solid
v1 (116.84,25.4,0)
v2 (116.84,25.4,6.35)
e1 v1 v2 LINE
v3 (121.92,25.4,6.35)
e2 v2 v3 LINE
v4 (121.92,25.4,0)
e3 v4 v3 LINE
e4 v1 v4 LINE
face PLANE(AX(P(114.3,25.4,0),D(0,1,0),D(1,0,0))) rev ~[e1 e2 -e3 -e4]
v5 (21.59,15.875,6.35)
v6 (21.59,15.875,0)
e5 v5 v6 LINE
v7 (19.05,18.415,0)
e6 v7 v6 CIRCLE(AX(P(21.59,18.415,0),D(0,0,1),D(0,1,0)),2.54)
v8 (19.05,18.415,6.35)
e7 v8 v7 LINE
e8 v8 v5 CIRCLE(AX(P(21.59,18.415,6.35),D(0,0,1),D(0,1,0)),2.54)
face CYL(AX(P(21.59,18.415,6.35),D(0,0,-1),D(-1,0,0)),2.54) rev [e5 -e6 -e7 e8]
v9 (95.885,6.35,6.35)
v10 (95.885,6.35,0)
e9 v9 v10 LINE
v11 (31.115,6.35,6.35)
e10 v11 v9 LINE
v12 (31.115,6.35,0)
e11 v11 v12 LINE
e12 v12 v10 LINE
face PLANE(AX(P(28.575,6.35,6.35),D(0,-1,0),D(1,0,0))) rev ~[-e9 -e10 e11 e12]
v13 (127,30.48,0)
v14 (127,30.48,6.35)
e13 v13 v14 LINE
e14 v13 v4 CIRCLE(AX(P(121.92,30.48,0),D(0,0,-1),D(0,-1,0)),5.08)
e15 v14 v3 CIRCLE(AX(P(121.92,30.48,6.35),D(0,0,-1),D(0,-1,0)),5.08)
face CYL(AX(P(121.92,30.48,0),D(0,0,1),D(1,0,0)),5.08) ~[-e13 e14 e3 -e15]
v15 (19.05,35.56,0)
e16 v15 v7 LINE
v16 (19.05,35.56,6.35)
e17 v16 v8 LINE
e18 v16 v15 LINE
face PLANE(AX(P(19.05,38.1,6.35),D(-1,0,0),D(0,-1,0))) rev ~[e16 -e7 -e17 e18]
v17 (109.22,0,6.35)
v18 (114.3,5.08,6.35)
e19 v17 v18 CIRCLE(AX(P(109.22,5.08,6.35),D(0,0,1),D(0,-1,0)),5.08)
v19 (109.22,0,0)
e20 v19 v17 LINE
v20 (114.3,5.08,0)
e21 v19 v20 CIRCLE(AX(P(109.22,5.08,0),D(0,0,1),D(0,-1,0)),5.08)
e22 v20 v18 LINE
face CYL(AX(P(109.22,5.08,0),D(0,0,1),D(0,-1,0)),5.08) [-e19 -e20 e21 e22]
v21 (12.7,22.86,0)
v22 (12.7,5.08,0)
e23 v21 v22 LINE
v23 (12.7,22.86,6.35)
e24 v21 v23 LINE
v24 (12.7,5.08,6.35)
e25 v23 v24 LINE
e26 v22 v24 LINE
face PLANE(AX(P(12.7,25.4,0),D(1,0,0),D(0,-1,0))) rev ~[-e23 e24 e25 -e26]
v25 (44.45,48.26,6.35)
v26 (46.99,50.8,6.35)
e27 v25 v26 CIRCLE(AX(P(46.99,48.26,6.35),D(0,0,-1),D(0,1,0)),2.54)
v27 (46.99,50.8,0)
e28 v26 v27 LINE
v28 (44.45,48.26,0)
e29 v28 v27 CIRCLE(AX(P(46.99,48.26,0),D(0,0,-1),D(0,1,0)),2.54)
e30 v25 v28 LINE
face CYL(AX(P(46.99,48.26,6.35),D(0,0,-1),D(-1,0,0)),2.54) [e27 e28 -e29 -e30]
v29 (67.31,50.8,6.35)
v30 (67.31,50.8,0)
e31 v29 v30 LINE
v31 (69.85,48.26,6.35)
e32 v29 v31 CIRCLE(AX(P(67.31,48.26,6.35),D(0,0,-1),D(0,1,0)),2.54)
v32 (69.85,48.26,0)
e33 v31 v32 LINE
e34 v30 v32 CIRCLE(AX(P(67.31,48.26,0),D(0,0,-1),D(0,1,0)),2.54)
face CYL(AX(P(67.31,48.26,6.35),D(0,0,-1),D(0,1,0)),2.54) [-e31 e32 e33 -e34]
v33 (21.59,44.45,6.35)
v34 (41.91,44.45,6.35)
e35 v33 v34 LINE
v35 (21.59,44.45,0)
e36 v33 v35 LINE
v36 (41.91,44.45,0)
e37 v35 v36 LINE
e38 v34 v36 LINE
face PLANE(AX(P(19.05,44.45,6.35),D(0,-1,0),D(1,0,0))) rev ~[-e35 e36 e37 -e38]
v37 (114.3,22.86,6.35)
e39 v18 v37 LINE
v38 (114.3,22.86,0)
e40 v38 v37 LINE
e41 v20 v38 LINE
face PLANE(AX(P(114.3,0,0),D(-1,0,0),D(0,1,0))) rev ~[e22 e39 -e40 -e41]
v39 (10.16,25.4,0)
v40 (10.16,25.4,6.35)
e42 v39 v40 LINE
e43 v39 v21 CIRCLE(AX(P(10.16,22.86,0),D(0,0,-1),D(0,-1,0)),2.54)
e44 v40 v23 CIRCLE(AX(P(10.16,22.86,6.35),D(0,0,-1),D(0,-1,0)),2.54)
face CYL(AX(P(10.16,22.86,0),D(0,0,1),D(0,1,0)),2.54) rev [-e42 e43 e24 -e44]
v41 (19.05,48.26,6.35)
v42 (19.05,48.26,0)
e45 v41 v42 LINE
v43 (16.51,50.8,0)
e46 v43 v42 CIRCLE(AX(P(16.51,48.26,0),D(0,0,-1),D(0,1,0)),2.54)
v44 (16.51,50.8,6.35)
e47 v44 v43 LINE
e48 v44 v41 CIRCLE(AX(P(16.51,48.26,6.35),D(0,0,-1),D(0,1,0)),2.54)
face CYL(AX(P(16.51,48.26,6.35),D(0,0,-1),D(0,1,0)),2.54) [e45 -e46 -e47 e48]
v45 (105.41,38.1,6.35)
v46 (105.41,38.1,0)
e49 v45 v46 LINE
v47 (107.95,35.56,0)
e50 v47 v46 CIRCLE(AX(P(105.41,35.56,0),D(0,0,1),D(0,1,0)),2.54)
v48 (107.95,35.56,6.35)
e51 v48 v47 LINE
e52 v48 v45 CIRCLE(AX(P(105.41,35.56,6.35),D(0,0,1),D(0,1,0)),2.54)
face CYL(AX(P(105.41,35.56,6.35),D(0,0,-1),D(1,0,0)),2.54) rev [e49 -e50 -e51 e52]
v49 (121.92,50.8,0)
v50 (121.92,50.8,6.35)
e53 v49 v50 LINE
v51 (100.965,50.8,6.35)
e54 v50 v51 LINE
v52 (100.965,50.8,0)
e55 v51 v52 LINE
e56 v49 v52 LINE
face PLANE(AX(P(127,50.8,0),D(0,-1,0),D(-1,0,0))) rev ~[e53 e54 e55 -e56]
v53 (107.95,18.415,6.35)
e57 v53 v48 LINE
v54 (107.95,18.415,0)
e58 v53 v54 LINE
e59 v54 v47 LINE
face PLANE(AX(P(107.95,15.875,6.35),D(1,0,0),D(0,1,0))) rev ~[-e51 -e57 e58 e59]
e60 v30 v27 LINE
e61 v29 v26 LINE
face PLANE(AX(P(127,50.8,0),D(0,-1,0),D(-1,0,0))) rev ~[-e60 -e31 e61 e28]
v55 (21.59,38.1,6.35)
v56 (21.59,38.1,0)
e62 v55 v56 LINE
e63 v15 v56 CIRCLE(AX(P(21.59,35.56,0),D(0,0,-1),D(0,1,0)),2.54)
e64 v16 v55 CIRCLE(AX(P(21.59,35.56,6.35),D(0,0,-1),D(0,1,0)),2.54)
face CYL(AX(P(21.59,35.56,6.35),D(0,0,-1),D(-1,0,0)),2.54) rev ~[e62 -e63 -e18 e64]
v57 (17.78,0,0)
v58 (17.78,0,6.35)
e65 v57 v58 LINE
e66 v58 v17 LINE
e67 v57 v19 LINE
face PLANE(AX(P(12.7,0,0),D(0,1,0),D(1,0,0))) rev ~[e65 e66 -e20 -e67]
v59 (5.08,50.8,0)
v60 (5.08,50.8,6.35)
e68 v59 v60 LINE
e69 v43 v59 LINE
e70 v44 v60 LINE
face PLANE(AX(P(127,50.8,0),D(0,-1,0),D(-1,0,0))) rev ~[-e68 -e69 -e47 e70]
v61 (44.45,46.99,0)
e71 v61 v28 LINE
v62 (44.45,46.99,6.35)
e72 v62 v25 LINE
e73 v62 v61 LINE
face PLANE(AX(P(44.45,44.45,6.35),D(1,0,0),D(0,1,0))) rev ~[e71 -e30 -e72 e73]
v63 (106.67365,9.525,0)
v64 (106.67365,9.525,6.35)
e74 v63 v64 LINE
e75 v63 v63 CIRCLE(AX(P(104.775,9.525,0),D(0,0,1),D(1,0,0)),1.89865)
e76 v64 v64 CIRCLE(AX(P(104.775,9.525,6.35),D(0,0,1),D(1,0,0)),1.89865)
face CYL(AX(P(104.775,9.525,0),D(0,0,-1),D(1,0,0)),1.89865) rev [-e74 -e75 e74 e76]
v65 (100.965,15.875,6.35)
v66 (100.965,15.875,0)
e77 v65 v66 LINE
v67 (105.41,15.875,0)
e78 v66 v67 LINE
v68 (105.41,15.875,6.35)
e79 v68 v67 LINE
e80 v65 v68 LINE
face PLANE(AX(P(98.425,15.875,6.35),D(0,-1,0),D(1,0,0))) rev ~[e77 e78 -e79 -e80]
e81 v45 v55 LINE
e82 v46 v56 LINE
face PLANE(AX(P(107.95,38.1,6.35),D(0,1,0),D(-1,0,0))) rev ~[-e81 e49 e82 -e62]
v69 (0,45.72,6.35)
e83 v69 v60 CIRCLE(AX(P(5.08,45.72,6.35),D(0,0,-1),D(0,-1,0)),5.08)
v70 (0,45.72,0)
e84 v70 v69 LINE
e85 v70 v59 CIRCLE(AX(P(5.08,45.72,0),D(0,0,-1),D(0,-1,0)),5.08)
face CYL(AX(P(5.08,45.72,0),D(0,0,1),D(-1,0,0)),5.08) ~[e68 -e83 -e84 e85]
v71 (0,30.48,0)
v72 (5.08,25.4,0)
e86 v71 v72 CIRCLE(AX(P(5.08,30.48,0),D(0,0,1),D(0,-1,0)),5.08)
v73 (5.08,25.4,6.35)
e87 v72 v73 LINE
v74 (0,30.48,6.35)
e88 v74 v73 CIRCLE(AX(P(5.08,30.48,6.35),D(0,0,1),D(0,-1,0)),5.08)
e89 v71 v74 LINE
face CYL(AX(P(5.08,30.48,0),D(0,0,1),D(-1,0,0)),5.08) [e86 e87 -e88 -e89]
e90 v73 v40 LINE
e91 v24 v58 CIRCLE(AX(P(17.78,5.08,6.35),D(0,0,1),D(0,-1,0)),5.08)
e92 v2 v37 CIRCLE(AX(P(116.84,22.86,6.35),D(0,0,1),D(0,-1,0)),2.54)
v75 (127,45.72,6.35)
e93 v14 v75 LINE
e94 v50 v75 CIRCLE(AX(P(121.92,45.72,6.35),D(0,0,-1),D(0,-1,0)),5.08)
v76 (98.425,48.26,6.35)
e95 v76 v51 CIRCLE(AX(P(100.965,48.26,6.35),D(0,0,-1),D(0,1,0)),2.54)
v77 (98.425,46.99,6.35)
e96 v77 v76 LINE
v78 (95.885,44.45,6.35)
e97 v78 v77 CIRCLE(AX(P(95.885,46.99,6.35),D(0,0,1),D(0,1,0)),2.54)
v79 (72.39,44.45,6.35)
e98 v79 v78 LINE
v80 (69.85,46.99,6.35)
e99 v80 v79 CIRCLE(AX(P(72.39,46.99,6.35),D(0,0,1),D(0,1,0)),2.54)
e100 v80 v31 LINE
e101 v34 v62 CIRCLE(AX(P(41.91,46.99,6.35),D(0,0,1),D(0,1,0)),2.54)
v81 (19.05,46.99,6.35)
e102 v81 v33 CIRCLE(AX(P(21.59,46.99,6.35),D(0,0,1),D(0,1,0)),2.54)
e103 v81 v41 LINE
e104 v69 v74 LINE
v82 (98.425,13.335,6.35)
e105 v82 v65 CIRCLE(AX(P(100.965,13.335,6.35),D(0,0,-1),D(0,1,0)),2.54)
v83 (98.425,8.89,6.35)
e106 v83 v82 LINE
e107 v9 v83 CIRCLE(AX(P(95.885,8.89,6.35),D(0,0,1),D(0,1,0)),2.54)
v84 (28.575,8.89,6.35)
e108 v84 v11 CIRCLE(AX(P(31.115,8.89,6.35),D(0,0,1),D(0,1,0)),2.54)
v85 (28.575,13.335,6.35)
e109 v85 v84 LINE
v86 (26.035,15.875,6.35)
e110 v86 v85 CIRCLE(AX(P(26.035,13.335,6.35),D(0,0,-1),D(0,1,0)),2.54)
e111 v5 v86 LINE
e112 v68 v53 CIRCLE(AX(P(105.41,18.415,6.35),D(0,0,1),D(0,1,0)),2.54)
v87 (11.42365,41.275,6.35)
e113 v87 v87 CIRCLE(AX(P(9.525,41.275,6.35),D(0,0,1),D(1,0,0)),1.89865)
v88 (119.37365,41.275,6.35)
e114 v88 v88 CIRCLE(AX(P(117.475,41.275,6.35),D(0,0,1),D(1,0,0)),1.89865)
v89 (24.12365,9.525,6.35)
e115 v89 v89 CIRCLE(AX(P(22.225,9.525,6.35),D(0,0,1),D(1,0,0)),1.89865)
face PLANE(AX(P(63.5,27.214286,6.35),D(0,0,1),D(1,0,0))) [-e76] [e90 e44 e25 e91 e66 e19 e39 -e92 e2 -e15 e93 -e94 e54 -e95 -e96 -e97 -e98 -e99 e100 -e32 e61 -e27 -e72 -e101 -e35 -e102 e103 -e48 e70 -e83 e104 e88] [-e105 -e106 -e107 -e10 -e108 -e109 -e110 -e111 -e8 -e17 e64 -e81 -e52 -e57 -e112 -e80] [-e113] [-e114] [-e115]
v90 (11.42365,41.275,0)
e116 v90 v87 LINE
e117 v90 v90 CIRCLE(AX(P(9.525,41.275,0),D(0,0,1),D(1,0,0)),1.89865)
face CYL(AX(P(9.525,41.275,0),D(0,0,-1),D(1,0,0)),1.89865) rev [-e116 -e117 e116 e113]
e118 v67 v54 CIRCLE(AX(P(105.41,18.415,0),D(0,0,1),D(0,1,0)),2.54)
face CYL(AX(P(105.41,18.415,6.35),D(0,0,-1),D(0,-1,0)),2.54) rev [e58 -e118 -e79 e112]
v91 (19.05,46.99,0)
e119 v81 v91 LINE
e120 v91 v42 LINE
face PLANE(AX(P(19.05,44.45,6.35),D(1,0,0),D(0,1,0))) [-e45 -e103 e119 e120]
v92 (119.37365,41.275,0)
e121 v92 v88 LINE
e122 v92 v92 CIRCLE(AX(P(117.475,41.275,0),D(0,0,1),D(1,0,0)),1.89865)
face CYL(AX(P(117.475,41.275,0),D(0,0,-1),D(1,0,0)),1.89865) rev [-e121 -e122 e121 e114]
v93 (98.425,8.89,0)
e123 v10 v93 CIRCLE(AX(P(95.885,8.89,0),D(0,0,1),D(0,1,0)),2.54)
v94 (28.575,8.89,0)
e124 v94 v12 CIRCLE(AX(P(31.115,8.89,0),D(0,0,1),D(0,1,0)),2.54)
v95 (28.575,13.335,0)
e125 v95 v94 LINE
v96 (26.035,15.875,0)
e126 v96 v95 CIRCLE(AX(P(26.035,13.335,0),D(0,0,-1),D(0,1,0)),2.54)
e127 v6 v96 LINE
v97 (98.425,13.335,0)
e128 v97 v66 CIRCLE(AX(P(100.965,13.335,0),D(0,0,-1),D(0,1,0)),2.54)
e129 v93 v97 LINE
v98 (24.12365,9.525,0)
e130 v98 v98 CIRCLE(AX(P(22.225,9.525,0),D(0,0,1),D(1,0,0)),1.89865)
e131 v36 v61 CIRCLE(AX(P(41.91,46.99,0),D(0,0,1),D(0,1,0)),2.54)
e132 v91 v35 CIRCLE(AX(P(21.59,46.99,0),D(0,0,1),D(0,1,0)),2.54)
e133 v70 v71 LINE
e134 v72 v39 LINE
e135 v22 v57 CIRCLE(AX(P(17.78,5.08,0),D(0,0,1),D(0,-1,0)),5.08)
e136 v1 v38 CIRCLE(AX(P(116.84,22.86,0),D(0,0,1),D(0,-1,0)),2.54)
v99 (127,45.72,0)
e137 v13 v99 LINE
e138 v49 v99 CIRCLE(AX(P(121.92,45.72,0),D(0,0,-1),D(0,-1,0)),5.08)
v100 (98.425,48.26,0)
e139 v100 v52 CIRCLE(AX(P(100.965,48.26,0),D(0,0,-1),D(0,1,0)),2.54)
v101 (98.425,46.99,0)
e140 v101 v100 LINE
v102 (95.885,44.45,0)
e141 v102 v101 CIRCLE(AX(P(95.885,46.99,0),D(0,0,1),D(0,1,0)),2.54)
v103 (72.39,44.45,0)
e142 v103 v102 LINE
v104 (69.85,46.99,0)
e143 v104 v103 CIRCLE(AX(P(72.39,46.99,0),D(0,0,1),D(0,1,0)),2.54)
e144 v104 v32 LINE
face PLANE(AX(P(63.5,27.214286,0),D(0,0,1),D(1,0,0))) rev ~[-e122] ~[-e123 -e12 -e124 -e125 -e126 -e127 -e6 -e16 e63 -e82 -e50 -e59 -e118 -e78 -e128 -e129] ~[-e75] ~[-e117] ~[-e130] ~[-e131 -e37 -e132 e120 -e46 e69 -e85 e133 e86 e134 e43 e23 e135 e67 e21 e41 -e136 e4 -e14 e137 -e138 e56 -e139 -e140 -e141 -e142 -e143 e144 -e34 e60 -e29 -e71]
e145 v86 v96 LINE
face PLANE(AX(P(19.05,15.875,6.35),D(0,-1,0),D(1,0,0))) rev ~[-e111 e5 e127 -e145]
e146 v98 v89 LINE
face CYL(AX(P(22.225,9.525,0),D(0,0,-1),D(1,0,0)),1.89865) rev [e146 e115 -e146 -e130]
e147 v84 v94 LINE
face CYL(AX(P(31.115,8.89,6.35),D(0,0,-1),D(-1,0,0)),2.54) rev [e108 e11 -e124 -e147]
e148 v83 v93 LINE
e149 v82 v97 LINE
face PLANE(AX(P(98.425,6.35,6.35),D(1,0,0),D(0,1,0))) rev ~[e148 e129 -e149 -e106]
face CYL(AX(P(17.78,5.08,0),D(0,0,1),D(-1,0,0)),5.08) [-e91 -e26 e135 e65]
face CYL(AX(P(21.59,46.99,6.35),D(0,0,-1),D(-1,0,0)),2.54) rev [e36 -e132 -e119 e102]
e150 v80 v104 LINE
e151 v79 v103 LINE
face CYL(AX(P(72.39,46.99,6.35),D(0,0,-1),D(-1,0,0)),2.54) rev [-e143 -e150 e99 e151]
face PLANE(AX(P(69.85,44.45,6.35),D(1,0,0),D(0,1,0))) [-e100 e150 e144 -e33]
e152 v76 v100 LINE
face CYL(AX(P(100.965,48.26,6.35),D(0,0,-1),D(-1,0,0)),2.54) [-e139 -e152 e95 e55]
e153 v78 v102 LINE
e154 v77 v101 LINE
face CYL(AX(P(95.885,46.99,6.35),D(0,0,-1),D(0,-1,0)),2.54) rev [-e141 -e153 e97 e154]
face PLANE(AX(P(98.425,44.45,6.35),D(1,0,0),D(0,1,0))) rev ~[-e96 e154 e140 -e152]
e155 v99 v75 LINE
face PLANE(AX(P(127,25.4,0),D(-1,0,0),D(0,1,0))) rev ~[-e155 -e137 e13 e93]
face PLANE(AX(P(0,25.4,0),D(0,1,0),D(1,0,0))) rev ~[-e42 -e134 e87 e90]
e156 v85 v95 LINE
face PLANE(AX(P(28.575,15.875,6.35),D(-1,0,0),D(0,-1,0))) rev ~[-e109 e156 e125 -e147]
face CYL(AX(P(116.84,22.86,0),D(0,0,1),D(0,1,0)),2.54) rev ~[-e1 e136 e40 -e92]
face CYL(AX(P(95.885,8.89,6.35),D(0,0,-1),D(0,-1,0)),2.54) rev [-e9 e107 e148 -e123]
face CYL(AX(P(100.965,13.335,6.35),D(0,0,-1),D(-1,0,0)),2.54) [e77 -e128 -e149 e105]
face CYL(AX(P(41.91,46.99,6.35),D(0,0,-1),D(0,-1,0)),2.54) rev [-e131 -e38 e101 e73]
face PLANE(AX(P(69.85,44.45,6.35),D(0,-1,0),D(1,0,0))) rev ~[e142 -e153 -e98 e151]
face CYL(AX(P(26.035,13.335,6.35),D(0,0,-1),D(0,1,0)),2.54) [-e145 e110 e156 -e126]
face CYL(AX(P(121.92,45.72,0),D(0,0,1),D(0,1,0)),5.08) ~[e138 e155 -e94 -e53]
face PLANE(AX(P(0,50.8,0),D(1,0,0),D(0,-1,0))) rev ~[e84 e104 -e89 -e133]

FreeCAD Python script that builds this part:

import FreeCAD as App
import Part
import Sketcher
Q = App.Units.Quantity


def edges_at(feature, points):
    """Names of the edges that pass closest to the given points."""
    edges = feature.Shape.Edges
    near = lambda p: min(range(len(edges)), key=lambda i: edges[i].distToShape(Part.Vertex(*p))[0])
    return sorted({f"Edge{near(p) + 1}" for p in points})


def add_polygon(sketch, points):
    """Adds a closed chain of lines whose ends are joined by coincident constraints."""
    first, n = sketch.GeometryCount, len(points)
    for a, b in zip(points, points[1:] + points[:1]):
        sketch.addGeometry(Part.LineSegment(App.Vector(*a, 0), App.Vector(*b, 0)), False)
    for i in range(n):
        sketch.addConstraint(Sketcher.Constraint("Coincident", first + i, 2, first + (i + 1) % n, 1))

doc = App.newDocument("Part")
body = doc.addObject("PartDesign::Body", "Body")

# Sketch on XY plane
sketch1 = doc.addObject("Sketcher::SketchObject", "Sketch")
body.addObject(sketch1)
sketch1.AttachmentSupport = (doc.XY_Plane, [""])
sketch1.MapMode = "FlatFace"
add_polygon(sketch1, [(0, 50.8), (0, 25.4), (12.7, 25.4), (12.7, 0), (114.3, 0), (114.3, 25.4), (127, 25.4), (127, 50.8)])  # lines 0-7
sketch1.addGeometry(Part.Circle(App.Vector(22.2, 9.5, 0), App.Vector(0, 0, 1), 1.9), False)  # 8
sketch1.addGeometry(Part.Circle(App.Vector(52.3, 19.6, 0), App.Vector(0, 0, 1), 1.6), False)  # 9
sketch1.addGeometry(Part.Circle(App.Vector(104.8, 9.5, 0), App.Vector(0, 0, 1), 1.9), False)  # 10
sketch1.addGeometry(Part.Circle(App.Vector(52.3, 30.7, 0), App.Vector(0, 0, 1), 1.6), False)  # 11
sketch1.addGeometry(Part.Circle(App.Vector(9.5, 41.3, 0), App.Vector(0, 0, 1), 1.9), False)  # 12
sketch1.addGeometry(Part.Circle(App.Vector(23.6, 47.6, 0), App.Vector(0, 0, 1), 1.6), False)  # 13
sketch1.addGeometry(Part.Circle(App.Vector(38.1, 47.6, 0), App.Vector(0, 0, 1), 1.6), False)  # 14
sketch1.addGeometry(Part.Circle(App.Vector(78.7, 47.6, 0), App.Vector(0, 0, 1), 1.6), False)  # 15
sketch1.addGeometry(Part.Circle(App.Vector(89.7, 47.6, 0), App.Vector(0, 0, 1), 1.6), False)  # 16
sketch1.addGeometry(Part.Circle(App.Vector(117.5, 41.3, 0), App.Vector(0, 0, 1), 1.9), False)  # 17
sketch1.addConstraint(Sketcher.Constraint("Vertical", 0))
sketch1.addConstraint(Sketcher.Constraint("Horizontal", 1))
sketch1.addConstraint(Sketcher.Constraint("Vertical", 2))
sketch1.addConstraint(Sketcher.Constraint("Horizontal", 3))
sketch1.addConstraint(Sketcher.Constraint("Vertical", 4))
sketch1.addConstraint(Sketcher.Constraint("Horizontal", 5))
sketch1.addConstraint(Sketcher.Constraint("Vertical", 6))
sketch1.addConstraint(Sketcher.Constraint("Horizontal", 7))
sketch1.addConstraint(Sketcher.Constraint("Equal", 8, 10))
sketch1.addConstraint(Sketcher.Constraint("Equal", 9, 11))
sketch1.addConstraint(Sketcher.Constraint("Equal", 10, 12))
sketch1.addConstraint(Sketcher.Constraint("Equal", 11, 13))
sketch1.addConstraint(Sketcher.Constraint("Equal", 13, 14))
sketch1.addConstraint(Sketcher.Constraint("Equal", 14, 15))
sketch1.addConstraint(Sketcher.Constraint("Equal", 15, 16))
sketch1.addConstraint(Sketcher.Constraint("Equal", 12, 17))
sketch1.addConstraint(Sketcher.Constraint("PointOnObject", 0, 2, -2))
sketch1.addConstraint(Sketcher.Constraint("PointOnObject", 2, 2, -1))
sketch1.addConstraint(Sketcher.Constraint("Horizontal", 8, 3, 10, 3))
sketch1.addConstraint(Sketcher.Constraint("Horizontal", 13, 3, 14, 3))
sketch1.addConstraint(Sketcher.Constraint("Horizontal", 14, 3, 15, 3))
sketch1.addConstraint(Sketcher.Constraint("Horizontal", 15, 3, 16, 3))
sketch1.addConstraint(Sketcher.Constraint("Horizontal", 12, 3, 17, 3))
sketch1.addConstraint(Sketcher.Constraint("Horizontal", 1, 2, 4, 2))
sketch1.addConstraint(Sketcher.Constraint("Vertical", 9, 3, 11, 3))
sketch1.addConstraint(Sketcher.Constraint("Equal", 1, 5))
sketch1.addConstraint(Sketcher.Constraint("Equal", 0, 2))
sketch1.addConstraint(Sketcher.Constraint("DistanceX", 3, 1, 3, 2, Q("4 in")))
sketch1.addConstraint(Sketcher.Constraint("DistanceX", 7, 2, 7, 1, Q("5 in")))
sketch1.addConstraint(Sketcher.Constraint("DistanceY", 0, 2, 0, 1, Q("1 in")))
sketch1.addConstraint(Sketcher.Constraint("Diameter", 9, Q("0.125 in")))
sketch1.addConstraint(Sketcher.Constraint("DistanceX", 1, 2, 14, 3, Q("1 in")))
sketch1.addConstraint(Sketcher.Constraint("Diameter", 8, Q("0.1495 in")))
sketch1.addConstraint(Sketcher.Constraint("DistanceX", -1, 1, 15, 3, Q("3.1 in")))
sketch1.addConstraint(Sketcher.Constraint("DistanceX", 12, 3, 8, 3, Q("0.5 in")))
sketch1.addConstraint(Sketcher.Constraint("DistanceY", 8, 3, 13, 3, Q("1.5 in")))
sketch1.addConstraint(Sketcher.Constraint("DistanceX", 10, 3, 17, 3, Q("0.5 in")))
sketch1.addConstraint(Sketcher.Constraint("DistanceX", -1, 1, 9, 3, Q("2.06 in")))
sketch1.addConstraint(Sketcher.Constraint("DistanceY", -1, 1, 9, 3, Q("0.77 in")))
sketch1.addConstraint(Sketcher.Constraint("DistanceY", -1, 1, 11, 3, Q("1.21 in")))
sketch1.addConstraint(Sketcher.Constraint("DistanceX", -1, 1, 13, 3, Q("0.93 in")))
sketch1.addConstraint(Sketcher.Constraint("DistanceX", -1, 1, 16, 3, Q("3.53 in")))
sketch1.addConstraint(Sketcher.Constraint("DistanceX", 8, 3, 10, 3, Q("3.25 in")))
sketch1.addConstraint(Sketcher.Constraint("DistanceY", 8, 3, 12, 3, Q("1.25 in")))
sketch1.addConstraint(Sketcher.Constraint("DistanceX", -1, 1, 8, 3, Q("0.875 in")))
sketch1.addConstraint(Sketcher.Constraint("DistanceY", -1, 1, 8, 3, Q("0.375 in")))
pad1 = doc.addObject("PartDesign::Pad", "Pad")
body.addObject(pad1)
pad1.Profile = sketch1
pad1.Length = Q("0.25 in")
doc.recompute()

fillet = doc.addObject("PartDesign::Fillet", "Fillet")
body.addObject(fillet)
fillet.Base = (pad1, edges_at(pad1, [
    (114.3, 0, 3.175),
    (12.7, 0, 3.175),
    (0, 25.4, 3.175),
    (0, 50.8, 3.175),
    (127, 50.8, 3.175),
    (127, 25.4, 3.175),
]))
fillet.Radius = Q("0.2 in")
doc.recompute()

fillet2 = doc.addObject("PartDesign::Fillet", "Fillet001")
body.addObject(fillet2)
fillet2.Base = (fillet, edges_at(fillet, [(12.7, 25.4, 3.175), (114.3, 25.4, 3.175)]))
fillet2.Radius = Q("0.1 in")

# Sketch on XY plane
sketch2 = doc.addObject("Sketcher::SketchObject", "Sketch001")
body.addObject(sketch2)
sketch2.AttachmentSupport = (doc.XY_Plane, [""])
sketch2.MapMode = "FlatFace"
sketch2.AttachmentOffset = App.Placement(App.Vector(0, 0, 0.25 * 25.4), App.Rotation())
add_polygon(sketch2, [(19, 51), (19, 44), (44, 44), (44, 51)])  # lines 0-3
add_polygon(sketch2, [(70, 51), (70, 44), (98, 44), (98, 51)])  # lines 4-7
add_polygon(sketch2, [(19, 38), (19, 16), (29, 16), (29, 6), (98, 6), (98, 16), (108, 16), (108, 38)])  # lines 8-15
sketch2.addConstraint(Sketcher.Constraint("Vertical", 0))
sketch2.addConstraint(Sketcher.Constraint("Horizontal", 1))
sketch2.addConstraint(Sketcher.Constraint("Vertical", 2))
sketch2.addConstraint(Sketcher.Constraint("Horizontal", 3))
sketch2.addConstraint(Sketcher.Constraint("Vertical", 4))
sketch2.addConstraint(Sketcher.Constraint("Horizontal", 5))
sketch2.addConstraint(Sketcher.Constraint("Vertical", 6))
sketch2.addConstraint(Sketcher.Constraint("Horizontal", 7))
sketch2.addConstraint(Sketcher.Constraint("Vertical", 8))
sketch2.addConstraint(Sketcher.Constraint("Horizontal", 9))
sketch2.addConstraint(Sketcher.Constraint("Vertical", 10))
sketch2.addConstraint(Sketcher.Constraint("Horizontal", 11))
sketch2.addConstraint(Sketcher.Constraint("Vertical", 12))
sketch2.addConstraint(Sketcher.Constraint("Horizontal", 13))
sketch2.addConstraint(Sketcher.Constraint("Vertical", 14))
sketch2.addConstraint(Sketcher.Constraint("Horizontal", 15))
sketch2.addConstraint(Sketcher.Constraint("Horizontal", 1, 2, 4, 2))
sketch2.addConstraint(Sketcher.Constraint("Horizontal", 3, 2, 6, 2))
sketch2.addConstraint(Sketcher.Constraint("Horizontal", 9, 2, 12, 2))
sketch2.addConstraint(Sketcher.Constraint("Vertical", 3, 2, 8, 2))
sketch2.addConstraint(Sketcher.Constraint("Vertical", 6, 2, 11, 2))
sketch2.addConstraint(Sketcher.Constraint("Equal", 9, 13))
sketch2.addConstraint(Sketcher.Constraint("Equal", 13, 10))
sketch2.addConstraint(Sketcher.Constraint("DistanceX", 1, 1, 1, 2, Q("1 in")))
sketch2.addConstraint(Sketcher.Constraint("DistanceX", 15, 2, 15, 1, Q("3.5 in")))
sketch2.addConstraint(Sketcher.Constraint("DistanceY", -1, 1, 2, 2, Q("2 in")))
sketch2.addConstraint(Sketcher.Constraint("DistanceX", 1, 2, 4, 2, Q("1 in")))
sketch2.addConstraint(Sketcher.Constraint("DistanceX", 11, 1, 11, 2, Q("2.75 in")))
sketch2.addConstraint(Sketcher.Constraint("DistanceY", 0, 2, 0, 1, Q("0.25 in")))
sketch2.addConstraint(Sketcher.Constraint("DistanceY", -1, 1, 14, 2, Q("1.5 in")))
sketch2.addConstraint(Sketcher.Constraint("DistanceY", 10, 2, 0, 2, Q("1.5 in")))
sketch2.addConstraint(Sketcher.Constraint("DistanceX", -1, 1, 0, 2, Q("0.75 in")))
pocket1 = doc.addObject("PartDesign::Pocket", "Pocket")
body.addObject(pocket1)
pocket1.Profile = sketch2
pocket1.Length = Q("0.35 in")
doc.recompute()

fillet3 = doc.addObject("PartDesign::Fillet", "Fillet002")
body.addObject(fillet3)
fillet3.Base = (pocket1, edges_at(pocket1, [
    (19.05, 50.8, 3.175),
    (44.45, 50.8, 3.175),
    (44.45, 44.45, 3.175),
    (19.05, 44.45, 3.175),
    (69.85, 50.8, 3.175),
    (98.425, 50.8, 3.175),
    (98.425, 44.45, 3.175),
    (69.85, 44.45, 3.175),
    (19.05, 38.1, 3.175),
    (107.95, 38.1, 3.175),
    (107.95, 15.875, 3.175),
    (98.425, 15.875, 3.175),
    (98.425, 6.35, 3.175),
    (28.575, 6.35, 3.175),
    (28.575, 15.875, 3.175),
    (19.05, 15.875, 3.175),
]))
fillet3.Radius = Q("0.1 in")

doc.recompute()
